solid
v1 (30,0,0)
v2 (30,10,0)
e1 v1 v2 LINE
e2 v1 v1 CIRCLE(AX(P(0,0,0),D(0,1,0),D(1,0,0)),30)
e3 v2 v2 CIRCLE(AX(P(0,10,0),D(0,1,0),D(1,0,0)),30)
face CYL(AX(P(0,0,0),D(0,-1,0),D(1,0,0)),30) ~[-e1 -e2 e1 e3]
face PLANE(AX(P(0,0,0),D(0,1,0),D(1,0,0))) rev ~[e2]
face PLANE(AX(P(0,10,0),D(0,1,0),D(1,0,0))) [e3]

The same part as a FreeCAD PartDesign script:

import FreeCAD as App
import Part
import Sketcher

doc = App.newDocument("Part")
body = doc.addObject("PartDesign::Body", "Body")

# Sketch on XZ plane
sketch1 = doc.addObject("Sketcher::SketchObject", "Sketch")
body.addObject(sketch1)
sketch1.AttachmentSupport = (doc.XZ_Plane, [""])
sketch1.MapMode = "FlatFace"
sketch1.addGeometry(Part.Circle(App.Vector(0, 0, 0), App.Vector(0, 0, 1), 30), False)
sketch1.addConstraint([
    Sketcher.Constraint("Coincident", 0, 3, -1, 1),
    Sketcher.Constraint("Diameter", 0, 60.0),
])
pad1 = doc.addObject("PartDesign::Pad", "Pad")
body.addObject(pad1)
pad1.Profile = sketch1
pad1.Length = 10
pad1.Reversed = True

doc.recompute()
